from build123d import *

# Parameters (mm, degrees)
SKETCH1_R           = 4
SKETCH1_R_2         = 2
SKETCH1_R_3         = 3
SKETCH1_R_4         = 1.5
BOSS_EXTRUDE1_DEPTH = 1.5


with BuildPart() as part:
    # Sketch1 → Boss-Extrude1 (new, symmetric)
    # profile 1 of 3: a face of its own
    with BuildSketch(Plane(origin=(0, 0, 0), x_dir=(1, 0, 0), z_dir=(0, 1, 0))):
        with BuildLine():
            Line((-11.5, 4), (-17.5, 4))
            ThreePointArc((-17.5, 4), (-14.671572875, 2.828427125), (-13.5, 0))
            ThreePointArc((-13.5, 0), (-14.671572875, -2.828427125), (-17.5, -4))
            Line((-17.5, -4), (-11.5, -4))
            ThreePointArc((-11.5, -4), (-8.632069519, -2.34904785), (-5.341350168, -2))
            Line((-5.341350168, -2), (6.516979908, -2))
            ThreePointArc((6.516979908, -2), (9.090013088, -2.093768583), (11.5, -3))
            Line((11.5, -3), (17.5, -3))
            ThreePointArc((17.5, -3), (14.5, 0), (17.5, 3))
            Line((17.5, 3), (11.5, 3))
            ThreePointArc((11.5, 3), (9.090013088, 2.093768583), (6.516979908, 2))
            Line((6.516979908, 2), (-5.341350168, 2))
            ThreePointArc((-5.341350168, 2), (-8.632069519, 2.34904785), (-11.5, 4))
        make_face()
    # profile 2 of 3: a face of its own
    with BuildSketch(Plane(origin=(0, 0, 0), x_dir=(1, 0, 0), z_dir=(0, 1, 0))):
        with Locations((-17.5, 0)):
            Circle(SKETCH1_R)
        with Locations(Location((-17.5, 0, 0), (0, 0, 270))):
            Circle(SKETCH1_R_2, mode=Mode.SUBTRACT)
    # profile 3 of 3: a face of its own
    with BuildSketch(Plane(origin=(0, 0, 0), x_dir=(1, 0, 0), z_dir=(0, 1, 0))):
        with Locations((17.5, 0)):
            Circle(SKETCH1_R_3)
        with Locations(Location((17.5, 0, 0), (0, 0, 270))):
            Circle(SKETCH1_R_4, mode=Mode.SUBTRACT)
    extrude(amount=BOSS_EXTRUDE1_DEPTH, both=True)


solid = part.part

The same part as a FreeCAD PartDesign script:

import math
import FreeCAD as App
import Part
import Sketcher

V = App.Vector

doc = App.newDocument("Part")
body = doc.addObject("PartDesign::Body", "Body")

# Sketch on XZ plane
sketch1 = doc.addObject("Sketcher::SketchObject", "Sketch")
body.addObject(sketch1)
sketch1.AttachmentSupport = (doc.XZ_Plane, [""])
sketch1.MapMode = "FlatFace"
sketch1.addGeometry([
    Part.LineSegment(V(-11.5, -4, 0), V(-17.5, -4, 0)),  # 0
    Part.ArcOfCircle(Part.Circle(V(-17.5, 0, 0), V(0, 0, 1), 4), math.radians(90), math.radians(270)),  # 1
    Part.LineSegment(V(-17.5, 4, 0), V(-11.5, 4, 0)),  # 2
    Part.ArcOfCircle(Part.Circle(V(-6.161126, 9.957887, 0), V(0, 0, 1), 8), math.radians(-131.86358), math.radians(-84.118467)),  # 3
    Part.LineSegment(V(-5.34135, 2, 0), V(6.51698, 2, 0)),  # 4
    Part.ArcOfCircle(Part.Circle(V(7.515944, 9.937384, 0), V(0, 0, 1), 8), math.radians(-97.173281), math.radians(-60.131772)),  # 5
    Part.LineSegment(V(11.5, 3, 0), V(17.5, 3, 0)),  # 6
    Part.ArcOfCircle(Part.Circle(V(17.5, 0, 0), V(0, 0, 1), 3), math.radians(-90), math.radians(90)),  # 7
    Part.LineSegment(V(17.5, -3, 0), V(11.5, -3, 0)),  # 8
    Part.ArcOfCircle(Part.Circle(V(7.515944, -9.937384, 0), V(0, 0, 1), 8), math.radians(60.131772), math.radians(97.173281)),  # 9
    Part.LineSegment(V(6.51698, -2, 0), V(-5.34135, -2, 0)),  # 10
    Part.ArcOfCircle(Part.Circle(V(-6.161126, -9.957887, 0), V(0, 0, 1), 8), math.radians(84.118467), math.radians(131.86358)),  # 11
    Part.Circle(V(-17.5, 0, 0), V(0, 0, 1), 2),  # 12
    Part.Circle(V(17.5, 0, 0), V(0, 0, 1), 1.5),  # 13
], False)
sketch1.addConstraint([
    Sketcher.Constraint("Tangent", 0, 2, 1, 2),
    Sketcher.Constraint("Tangent", 1, 1, 2, 1),
    Sketcher.Constraint("Coincident", 2, 2, 3, 1),
    Sketcher.Constraint("Coincident", 3, 2, 4, 1),
    Sketcher.Constraint("Coincident", 4, 2, 5, 1),
    Sketcher.Constraint("Coincident", 5, 2, 6, 1),
    Sketcher.Constraint("Tangent", 6, 2, 7, 2),
    Sketcher.Constraint("Tangent", 7, 1, 8, 1),
    Sketcher.Constraint("Coincident", 8, 2, 9, 1),
    Sketcher.Constraint("Coincident", 9, 2, 10, 1),
    Sketcher.Constraint("Coincident", 10, 2, 11, 1),
    Sketcher.Constraint("Coincident", 11, 2, 0, 1),
    Sketcher.Constraint("Horizontal", 0),
    Sketcher.Constraint("Horizontal", 2),
    Sketcher.Constraint("Horizontal", 4),
    Sketcher.Constraint("Horizontal", 6),
    Sketcher.Constraint("Horizontal", 8),
    Sketcher.Constraint("Horizontal", 10),
    Sketcher.Constraint("Coincident", 12, 3, 1, 3),
    Sketcher.Constraint("Coincident", 13, 3, 7, 3),
    Sketcher.Constraint("Equal", 3, 5),
    Sketcher.Constraint("Equal", 5, 9),
    Sketcher.Constraint("Equal", 9, 11),
    Sketcher.Constraint("Symmetric", 1, 3, 7, 3, -1, 1),
    Sketcher.Constraint("Symmetric", 5, 3, 9, 3, -1),
    Sketcher.Constraint("Symmetric", 3, 3, 11, 3, -1),
    Sketcher.Constraint("PointOnObject", 1, 3, -1),
    Sketcher.Constraint("Vertical", 4, 2, 9, 2),
    Sketcher.Constraint("Equal", 2, 6),
    Sketcher.Constraint("Diameter", 12, 4.0),
    Sketcher.Constraint("Diameter", 13, 3.0),
    Sketcher.Constraint("Radius", 1, 4.0),
    Sketcher.Constraint("Radius", 3, 8.0),
    Sketcher.Constraint("Radius", 7, 3.0),
    Sketcher.Constraint("DistanceX", 0, 2, 0, 1, 6.0),
    Sketcher.Constraint("DistanceY", -1, 1, 3, 2, 2.0),
    Sketcher.Constraint("DistanceX", 1, 3, 7, 3, 35.0),
    Sketcher.Constraint("DistanceX", 4, 1, 4, 2, 11.85833),
    Sketcher.Constraint("DistanceX", 3, 2, -1, 1, 5.34135),
])
pad1 = doc.addObject("PartDesign::Pad", "Pad")
body.addObject(pad1)
pad1.Profile = sketch1
pad1.Length = 3
pad1.Midplane = True

doc.recompute()
